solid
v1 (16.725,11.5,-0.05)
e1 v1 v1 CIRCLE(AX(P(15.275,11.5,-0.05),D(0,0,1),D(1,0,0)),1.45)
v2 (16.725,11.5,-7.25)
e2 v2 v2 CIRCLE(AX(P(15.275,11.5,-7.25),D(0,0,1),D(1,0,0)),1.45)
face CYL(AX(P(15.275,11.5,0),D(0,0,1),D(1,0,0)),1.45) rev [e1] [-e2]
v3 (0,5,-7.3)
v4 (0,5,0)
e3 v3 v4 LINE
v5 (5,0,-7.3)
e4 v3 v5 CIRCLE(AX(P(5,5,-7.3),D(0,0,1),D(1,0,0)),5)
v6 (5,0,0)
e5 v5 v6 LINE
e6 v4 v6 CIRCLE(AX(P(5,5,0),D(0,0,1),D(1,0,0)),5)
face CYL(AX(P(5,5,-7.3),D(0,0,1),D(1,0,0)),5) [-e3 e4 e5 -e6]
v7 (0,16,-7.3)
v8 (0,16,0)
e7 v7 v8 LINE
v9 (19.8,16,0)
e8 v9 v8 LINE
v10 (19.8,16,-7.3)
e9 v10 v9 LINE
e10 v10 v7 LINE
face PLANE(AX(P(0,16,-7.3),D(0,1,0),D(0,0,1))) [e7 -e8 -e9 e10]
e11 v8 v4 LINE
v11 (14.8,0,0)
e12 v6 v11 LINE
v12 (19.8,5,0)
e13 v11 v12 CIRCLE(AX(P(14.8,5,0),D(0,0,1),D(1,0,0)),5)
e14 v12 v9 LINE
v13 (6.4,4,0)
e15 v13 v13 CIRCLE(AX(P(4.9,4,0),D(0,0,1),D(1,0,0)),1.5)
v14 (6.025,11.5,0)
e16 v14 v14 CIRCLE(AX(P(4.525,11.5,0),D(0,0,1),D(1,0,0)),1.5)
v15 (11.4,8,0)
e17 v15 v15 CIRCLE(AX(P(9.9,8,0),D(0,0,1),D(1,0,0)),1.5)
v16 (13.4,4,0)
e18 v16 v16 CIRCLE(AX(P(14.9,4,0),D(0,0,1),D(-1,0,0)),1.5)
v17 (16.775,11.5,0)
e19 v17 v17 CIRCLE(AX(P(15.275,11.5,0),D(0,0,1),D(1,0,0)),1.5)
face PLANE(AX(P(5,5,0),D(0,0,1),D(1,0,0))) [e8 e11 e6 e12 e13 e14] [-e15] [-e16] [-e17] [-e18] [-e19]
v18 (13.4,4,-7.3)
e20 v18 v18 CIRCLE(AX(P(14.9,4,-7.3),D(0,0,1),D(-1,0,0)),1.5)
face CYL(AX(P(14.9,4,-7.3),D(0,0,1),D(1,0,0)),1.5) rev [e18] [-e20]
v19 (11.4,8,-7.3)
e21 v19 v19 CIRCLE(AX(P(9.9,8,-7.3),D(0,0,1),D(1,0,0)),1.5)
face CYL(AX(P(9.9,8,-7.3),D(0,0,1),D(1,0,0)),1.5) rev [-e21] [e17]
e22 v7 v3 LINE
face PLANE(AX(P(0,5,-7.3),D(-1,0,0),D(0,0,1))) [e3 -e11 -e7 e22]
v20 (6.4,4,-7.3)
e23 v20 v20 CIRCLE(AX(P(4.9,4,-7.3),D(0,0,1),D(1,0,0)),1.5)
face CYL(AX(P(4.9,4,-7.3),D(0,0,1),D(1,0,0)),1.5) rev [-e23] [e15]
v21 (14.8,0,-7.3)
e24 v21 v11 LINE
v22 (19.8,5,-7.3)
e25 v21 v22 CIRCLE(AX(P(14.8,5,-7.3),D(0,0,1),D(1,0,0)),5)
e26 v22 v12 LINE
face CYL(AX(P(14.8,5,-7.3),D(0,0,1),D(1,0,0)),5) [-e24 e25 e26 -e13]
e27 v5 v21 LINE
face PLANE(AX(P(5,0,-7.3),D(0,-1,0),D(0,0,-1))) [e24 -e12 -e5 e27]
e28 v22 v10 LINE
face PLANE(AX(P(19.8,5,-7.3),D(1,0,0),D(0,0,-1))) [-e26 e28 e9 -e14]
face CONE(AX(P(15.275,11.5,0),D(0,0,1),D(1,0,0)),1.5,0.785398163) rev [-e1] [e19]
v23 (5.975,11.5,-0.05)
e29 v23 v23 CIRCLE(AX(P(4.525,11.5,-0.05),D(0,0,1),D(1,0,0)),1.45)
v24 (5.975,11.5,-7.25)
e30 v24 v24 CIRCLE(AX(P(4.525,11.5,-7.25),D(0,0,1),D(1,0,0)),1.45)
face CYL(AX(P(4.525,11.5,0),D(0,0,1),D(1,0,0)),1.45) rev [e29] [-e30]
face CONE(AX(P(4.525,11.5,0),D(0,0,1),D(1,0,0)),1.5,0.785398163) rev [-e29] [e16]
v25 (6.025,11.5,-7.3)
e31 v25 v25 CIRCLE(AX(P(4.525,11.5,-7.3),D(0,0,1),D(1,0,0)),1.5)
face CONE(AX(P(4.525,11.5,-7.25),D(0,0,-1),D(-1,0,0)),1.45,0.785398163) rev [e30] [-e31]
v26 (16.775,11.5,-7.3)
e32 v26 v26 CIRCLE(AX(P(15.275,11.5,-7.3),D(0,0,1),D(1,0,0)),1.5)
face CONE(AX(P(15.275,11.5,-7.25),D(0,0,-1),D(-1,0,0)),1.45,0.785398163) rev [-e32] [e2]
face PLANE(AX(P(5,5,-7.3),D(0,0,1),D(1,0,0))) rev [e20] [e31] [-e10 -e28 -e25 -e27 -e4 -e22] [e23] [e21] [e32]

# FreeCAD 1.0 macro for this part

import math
import FreeCAD as App
import Part
import Sketcher
Q = App.Units.Quantity

doc = App.newDocument("Part")
body = doc.addObject("PartDesign::Body", "Body")

# Sketch on XY plane
sketch1 = body.newObject("Sketcher::SketchObject", "Sketch")
sketch1.AttachmentSupport = (doc.getObject("XY_Plane"), [""])
sketch1.MapMode = "FlatFace"
sketch1.addGeometry([
    Part.LineSegment(App.Vector(5, 0, 0), App.Vector(14.8, 0, 0)),  # 0
    Part.ArcOfCircle(Part.Circle(App.Vector(14.8, 5, 0), App.Vector(0, 0, 1), 5), math.radians(-90), math.radians(0)),  # 1
    Part.LineSegment(App.Vector(19.8, 5, 0), App.Vector(19.8, 16, 0)),  # 2
    Part.LineSegment(App.Vector(19.8, 16, 0), App.Vector(0, 16, 0)),  # 3
    Part.LineSegment(App.Vector(0, 16, 0), App.Vector(0, 5, 0)),  # 4
    Part.ArcOfCircle(Part.Circle(App.Vector(5, 5, 0), App.Vector(0, 0, 1), 5), math.radians(180), math.radians(270)),  # 5
    Part.Circle(App.Vector(4.9, 4, 0), App.Vector(0, 0, 1), 1.5),  # 6
    Part.Circle(App.Vector(14.9, 4, 0), App.Vector(0, 0, 1), 1.5),  # 7
    Part.Circle(App.Vector(4.5, 11.5, 0), App.Vector(0, 0, 1), 1.2),  # 8
    Part.Circle(App.Vector(9.9, 8, 0), App.Vector(0, 0, 1), 1.5),  # 9
    Part.Circle(App.Vector(15.3, 11.5, 0), App.Vector(0, 0, 1), 1.2),  # 10
], False)
sketch1.addConstraint([
    Sketcher.Constraint("Tangent", 0, 2, 1, 1),
    Sketcher.Constraint("Tangent", 1, 2, 2, 1),
    Sketcher.Constraint("Coincident", 2, 2, 3, 1),
    Sketcher.Constraint("Coincident", 3, 2, 4, 1),
    Sketcher.Constraint("Tangent", 4, 2, 5, 1),
    Sketcher.Constraint("Tangent", 5, 2, 0, 1),
    Sketcher.Constraint("Horizontal", 0),
    Sketcher.Constraint("Vertical", 2),
    Sketcher.Constraint("Horizontal", 3),
    Sketcher.Constraint("Vertical", 4),
    Sketcher.Constraint("Equal", 1, 5),
    Sketcher.Constraint("Equal", 6, 7),
    Sketcher.Constraint("Equal", 7, 9),
    Sketcher.Constraint("Equal", 8, 10),
    Sketcher.Constraint("PointOnObject", 0, 2, -1),
    Sketcher.Constraint("PointOnObject", 3, 2, -2),
    Sketcher.Constraint("Horizontal", 6, 3, 7, 3),
    Sketcher.Constraint("Horizontal", 8, 3, 10, 3),
    Sketcher.Constraint("Diameter", 6, Q("3 mm")),
    Sketcher.Constraint("Radius", 1, Q("5 mm")),
    Sketcher.Constraint("Diameter", 8, Q("2.5 mm")),
    Sketcher.Constraint("DistanceY", 2, 1, 2, 2, Q("11 mm")),
    Sketcher.Constraint("DistanceX", 0, 1, 0, 2, Q("9.8 mm")),
    Sketcher.Constraint("DistanceY", -1, 1, 6, 3, Q("4 mm")),
    Sketcher.Constraint("DistanceY", -1, 1, 9, 3, Q("8 mm")),
    Sketcher.Constraint("DistanceX", 6, 3, 7, 3, Q("10 mm")),
    Sketcher.Constraint("DistanceX", 6, 3, 9, 3, Q("5 mm")),
    Sketcher.Constraint("DistanceX", -1, 1, 6, 3, Q("4.9 mm")),
    Sketcher.Constraint("DistanceY", -1, 1, 8, 3, Q("11.5 mm")),
    Sketcher.Constraint("DistanceX", 8, 3, 10, 3, Q("10.75 mm")),
    Sketcher.Constraint("DistanceX", -1, 1, 8, 3, Q("4.525 mm")),
])
pad1 = body.newObject("PartDesign::Pad", "Pad")
pad1.Profile = sketch1
pad1.Length = 7.3
pad1.Reversed = True

# Sketch on YZ plane
sketch2 = body.newObject("Sketcher::SketchObject", "Sketch001")
sketch2.AttachmentSupport = (doc.getObject("YZ_Plane"), [""])
sketch2.MapMode = "FlatFace"
sketch2.AttachmentOffset = App.Placement(App.Vector(0, 0, 4.525), App.Rotation())
sketch2.addGeometry([
    Part.LineSegment(App.Vector(11.5, -7.3, 0), App.Vector(11.5, 0, 0)),  # 0
    Part.LineSegment(App.Vector(11.5, 0, 0), App.Vector(10, 0, 0)),  # 1
    Part.LineSegment(App.Vector(10, 0, 0), App.Vector(10.05, -0.05, 0)),  # 2
    Part.LineSegment(App.Vector(10.05, -0.05, 0), App.Vector(10.05, -7.25, 0)),  # 3
    Part.LineSegment(App.Vector(10.05, -7.25, 0), App.Vector(10, -7.3, 0)),  # 4
    Part.LineSegment(App.Vector(10, -7.3, 0), App.Vector(11.5, -7.3, 0)),  # 5
], False)
sketch2.addGeometry(Part.LineSegment(App.Vector(11.5, 0, 0), App.Vector(11.5, -7.3, 0)), True)  # axis
sketch2.addConstraint([
    Sketcher.Constraint("Coincident", 0, 2, 1, 1),
    Sketcher.Constraint("Coincident", 1, 2, 2, 1),
    Sketcher.Constraint("Coincident", 2, 2, 3, 1),
    Sketcher.Constraint("Coincident", 3, 2, 4, 1),
    Sketcher.Constraint("Coincident", 4, 2, 5, 1),
    Sketcher.Constraint("Coincident", 5, 2, 0, 1),
    Sketcher.Constraint("Vertical", 0),
    Sketcher.Constraint("Horizontal", 1),
    Sketcher.Constraint("Vertical", 3),
    Sketcher.Constraint("Horizontal", 5),
    Sketcher.Constraint("Vertical", 6),
    Sketcher.Constraint("Coincident", 6, 1, 0, 2),
    Sketcher.Constraint("PointOnObject", 0, 2, -1),
    Sketcher.Constraint("Perpendicular", 2, 4),
    Sketcher.Constraint("Horizontal", 4, 2, 6, 2),
    Sketcher.Constraint("Vertical", 1, 2, 4, 2),
    Sketcher.Constraint("Equal", 2, 4),
    Sketcher.Constraint("DistanceX", 1, 2, 1, 1, Q("1.5 mm")),
    Sketcher.Constraint("DistanceY", 0, 1, 0, 2, Q("7.3 mm")),
    Sketcher.Constraint("DistanceY", 3, 2, 3, 1, Q("7.2 mm")),
    Sketcher.Constraint("DistanceX", -1, 1, 1, 2, Q("10 mm")),
])
groove = body.newObject("PartDesign::Groove", "Groove")
groove.Profile = sketch2
groove.ReferenceAxis = (sketch2, ["Axis0"])
groove.Angle = 360
doc.recompute()

linearpattern = body.newObject("PartDesign::LinearPattern", "LinearPattern")
linearpattern.Originals = [groove]
linearpattern.Direction = (doc.getObject("X_Axis"), [""])
linearpattern.Mode = "offset"
linearpattern.Offset = 10.75
linearpattern.Occurrences = 2
body.Tip = linearpattern

doc.recompute()
